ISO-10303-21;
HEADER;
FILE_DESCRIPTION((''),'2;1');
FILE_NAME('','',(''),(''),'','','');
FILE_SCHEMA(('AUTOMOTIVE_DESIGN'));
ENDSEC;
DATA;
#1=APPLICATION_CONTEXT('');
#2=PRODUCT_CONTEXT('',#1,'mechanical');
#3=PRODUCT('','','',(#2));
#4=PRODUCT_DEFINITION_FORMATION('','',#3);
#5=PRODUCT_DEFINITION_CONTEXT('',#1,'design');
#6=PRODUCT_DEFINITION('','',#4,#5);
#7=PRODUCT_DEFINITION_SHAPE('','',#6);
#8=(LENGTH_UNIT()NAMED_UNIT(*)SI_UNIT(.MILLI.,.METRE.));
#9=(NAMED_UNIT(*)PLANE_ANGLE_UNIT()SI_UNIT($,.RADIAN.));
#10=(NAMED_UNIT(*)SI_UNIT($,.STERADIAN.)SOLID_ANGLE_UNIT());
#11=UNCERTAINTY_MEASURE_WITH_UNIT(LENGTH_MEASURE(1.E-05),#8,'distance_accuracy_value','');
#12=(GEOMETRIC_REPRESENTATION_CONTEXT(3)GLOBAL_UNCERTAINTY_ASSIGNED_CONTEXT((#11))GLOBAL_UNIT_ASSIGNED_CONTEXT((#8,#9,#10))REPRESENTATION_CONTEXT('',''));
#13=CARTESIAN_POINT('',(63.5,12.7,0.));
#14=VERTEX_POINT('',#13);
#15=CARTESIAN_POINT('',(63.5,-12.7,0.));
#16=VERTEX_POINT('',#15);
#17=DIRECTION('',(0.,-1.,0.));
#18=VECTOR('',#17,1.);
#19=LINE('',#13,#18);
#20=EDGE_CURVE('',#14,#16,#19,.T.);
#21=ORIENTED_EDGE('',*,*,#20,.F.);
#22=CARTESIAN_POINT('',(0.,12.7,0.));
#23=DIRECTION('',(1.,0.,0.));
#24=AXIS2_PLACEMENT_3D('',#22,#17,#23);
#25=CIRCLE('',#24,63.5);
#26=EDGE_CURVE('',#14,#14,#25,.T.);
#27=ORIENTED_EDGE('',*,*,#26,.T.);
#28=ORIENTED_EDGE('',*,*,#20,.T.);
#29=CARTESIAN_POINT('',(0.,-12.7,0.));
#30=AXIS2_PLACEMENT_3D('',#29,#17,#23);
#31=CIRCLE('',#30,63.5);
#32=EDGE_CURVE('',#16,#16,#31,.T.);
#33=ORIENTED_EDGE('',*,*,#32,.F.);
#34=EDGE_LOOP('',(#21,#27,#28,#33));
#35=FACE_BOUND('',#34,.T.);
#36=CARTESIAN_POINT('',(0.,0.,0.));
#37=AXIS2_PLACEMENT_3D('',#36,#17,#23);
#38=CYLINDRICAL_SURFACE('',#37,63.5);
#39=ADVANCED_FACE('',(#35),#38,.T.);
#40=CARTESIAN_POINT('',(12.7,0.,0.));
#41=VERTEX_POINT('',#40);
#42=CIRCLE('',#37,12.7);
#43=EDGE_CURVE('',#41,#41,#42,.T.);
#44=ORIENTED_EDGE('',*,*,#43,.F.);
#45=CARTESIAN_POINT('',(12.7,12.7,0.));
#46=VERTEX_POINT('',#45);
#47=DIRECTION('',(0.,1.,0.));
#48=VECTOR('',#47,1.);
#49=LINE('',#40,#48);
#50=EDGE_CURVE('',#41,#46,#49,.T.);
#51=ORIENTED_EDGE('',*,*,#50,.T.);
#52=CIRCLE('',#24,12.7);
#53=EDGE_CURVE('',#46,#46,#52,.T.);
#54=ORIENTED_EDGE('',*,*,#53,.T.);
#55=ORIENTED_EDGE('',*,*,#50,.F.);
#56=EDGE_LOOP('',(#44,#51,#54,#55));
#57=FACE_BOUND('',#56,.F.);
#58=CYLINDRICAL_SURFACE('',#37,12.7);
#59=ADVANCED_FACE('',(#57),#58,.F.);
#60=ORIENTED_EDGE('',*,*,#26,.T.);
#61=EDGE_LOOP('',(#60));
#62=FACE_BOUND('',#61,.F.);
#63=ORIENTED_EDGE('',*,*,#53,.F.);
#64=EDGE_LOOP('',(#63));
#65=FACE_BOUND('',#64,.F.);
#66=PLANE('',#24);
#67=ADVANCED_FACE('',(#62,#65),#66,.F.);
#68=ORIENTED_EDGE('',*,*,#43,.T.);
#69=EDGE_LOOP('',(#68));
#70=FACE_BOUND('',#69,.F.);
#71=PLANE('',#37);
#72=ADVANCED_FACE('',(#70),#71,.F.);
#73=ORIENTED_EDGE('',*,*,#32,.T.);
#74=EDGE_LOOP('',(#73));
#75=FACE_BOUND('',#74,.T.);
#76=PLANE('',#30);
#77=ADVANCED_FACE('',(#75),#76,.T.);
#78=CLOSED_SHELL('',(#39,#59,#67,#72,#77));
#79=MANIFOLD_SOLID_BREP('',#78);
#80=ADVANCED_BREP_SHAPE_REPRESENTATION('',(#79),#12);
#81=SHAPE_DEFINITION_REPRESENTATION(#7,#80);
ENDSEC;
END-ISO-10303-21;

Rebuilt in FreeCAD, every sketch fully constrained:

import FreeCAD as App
import Part
import Sketcher

V = App.Vector
Q = App.Units.Quantity

doc = App.newDocument("Part")
body = doc.addObject("PartDesign::Body", "Body")

# Sketch on XZ plane
sketch1 = body.newObject("Sketcher::SketchObject", "Sketch")
sketch1.AttachmentSupport = (doc.getObject("XZ_Plane"), [""])
sketch1.MapMode = "FlatFace"
sketch1.addGeometry(Part.Circle(V(0, 0, 0), V(0, 0, 1), 64), False)
sketch1.addConstraint(Sketcher.Constraint("Coincident", 0, 3, -1, 1))
sketch1.addConstraint(Sketcher.Constraint("Diameter", 0, Q("5 in")))
pad1 = body.newObject("PartDesign::Pad", "Pad")
pad1.Profile = sketch1
pad1.Type = "TwoLengths"
pad1.Length = Q("0.5 in")
pad1.Length2 = Q("0.5 in")

# Sketch on XZ plane
sketch2 = body.newObject("Sketcher::SketchObject", "Sketch001")
sketch2.AttachmentSupport = (doc.getObject("XZ_Plane"), [""])
sketch2.MapMode = "FlatFace"
sketch2.addGeometry(Part.Circle(V(0, 0, 0), V(0, 0, 1), 13), False)
sketch2.addConstraint(Sketcher.Constraint("Coincident", 0, 3, -1, 1))
sketch2.addConstraint(Sketcher.Constraint("Diameter", 0, Q("1 in")))
pocket1 = body.newObject("PartDesign::Pocket", "Pocket")
pocket1.Profile = sketch2
pocket1.Length = Q("1 in")

doc.recompute()
